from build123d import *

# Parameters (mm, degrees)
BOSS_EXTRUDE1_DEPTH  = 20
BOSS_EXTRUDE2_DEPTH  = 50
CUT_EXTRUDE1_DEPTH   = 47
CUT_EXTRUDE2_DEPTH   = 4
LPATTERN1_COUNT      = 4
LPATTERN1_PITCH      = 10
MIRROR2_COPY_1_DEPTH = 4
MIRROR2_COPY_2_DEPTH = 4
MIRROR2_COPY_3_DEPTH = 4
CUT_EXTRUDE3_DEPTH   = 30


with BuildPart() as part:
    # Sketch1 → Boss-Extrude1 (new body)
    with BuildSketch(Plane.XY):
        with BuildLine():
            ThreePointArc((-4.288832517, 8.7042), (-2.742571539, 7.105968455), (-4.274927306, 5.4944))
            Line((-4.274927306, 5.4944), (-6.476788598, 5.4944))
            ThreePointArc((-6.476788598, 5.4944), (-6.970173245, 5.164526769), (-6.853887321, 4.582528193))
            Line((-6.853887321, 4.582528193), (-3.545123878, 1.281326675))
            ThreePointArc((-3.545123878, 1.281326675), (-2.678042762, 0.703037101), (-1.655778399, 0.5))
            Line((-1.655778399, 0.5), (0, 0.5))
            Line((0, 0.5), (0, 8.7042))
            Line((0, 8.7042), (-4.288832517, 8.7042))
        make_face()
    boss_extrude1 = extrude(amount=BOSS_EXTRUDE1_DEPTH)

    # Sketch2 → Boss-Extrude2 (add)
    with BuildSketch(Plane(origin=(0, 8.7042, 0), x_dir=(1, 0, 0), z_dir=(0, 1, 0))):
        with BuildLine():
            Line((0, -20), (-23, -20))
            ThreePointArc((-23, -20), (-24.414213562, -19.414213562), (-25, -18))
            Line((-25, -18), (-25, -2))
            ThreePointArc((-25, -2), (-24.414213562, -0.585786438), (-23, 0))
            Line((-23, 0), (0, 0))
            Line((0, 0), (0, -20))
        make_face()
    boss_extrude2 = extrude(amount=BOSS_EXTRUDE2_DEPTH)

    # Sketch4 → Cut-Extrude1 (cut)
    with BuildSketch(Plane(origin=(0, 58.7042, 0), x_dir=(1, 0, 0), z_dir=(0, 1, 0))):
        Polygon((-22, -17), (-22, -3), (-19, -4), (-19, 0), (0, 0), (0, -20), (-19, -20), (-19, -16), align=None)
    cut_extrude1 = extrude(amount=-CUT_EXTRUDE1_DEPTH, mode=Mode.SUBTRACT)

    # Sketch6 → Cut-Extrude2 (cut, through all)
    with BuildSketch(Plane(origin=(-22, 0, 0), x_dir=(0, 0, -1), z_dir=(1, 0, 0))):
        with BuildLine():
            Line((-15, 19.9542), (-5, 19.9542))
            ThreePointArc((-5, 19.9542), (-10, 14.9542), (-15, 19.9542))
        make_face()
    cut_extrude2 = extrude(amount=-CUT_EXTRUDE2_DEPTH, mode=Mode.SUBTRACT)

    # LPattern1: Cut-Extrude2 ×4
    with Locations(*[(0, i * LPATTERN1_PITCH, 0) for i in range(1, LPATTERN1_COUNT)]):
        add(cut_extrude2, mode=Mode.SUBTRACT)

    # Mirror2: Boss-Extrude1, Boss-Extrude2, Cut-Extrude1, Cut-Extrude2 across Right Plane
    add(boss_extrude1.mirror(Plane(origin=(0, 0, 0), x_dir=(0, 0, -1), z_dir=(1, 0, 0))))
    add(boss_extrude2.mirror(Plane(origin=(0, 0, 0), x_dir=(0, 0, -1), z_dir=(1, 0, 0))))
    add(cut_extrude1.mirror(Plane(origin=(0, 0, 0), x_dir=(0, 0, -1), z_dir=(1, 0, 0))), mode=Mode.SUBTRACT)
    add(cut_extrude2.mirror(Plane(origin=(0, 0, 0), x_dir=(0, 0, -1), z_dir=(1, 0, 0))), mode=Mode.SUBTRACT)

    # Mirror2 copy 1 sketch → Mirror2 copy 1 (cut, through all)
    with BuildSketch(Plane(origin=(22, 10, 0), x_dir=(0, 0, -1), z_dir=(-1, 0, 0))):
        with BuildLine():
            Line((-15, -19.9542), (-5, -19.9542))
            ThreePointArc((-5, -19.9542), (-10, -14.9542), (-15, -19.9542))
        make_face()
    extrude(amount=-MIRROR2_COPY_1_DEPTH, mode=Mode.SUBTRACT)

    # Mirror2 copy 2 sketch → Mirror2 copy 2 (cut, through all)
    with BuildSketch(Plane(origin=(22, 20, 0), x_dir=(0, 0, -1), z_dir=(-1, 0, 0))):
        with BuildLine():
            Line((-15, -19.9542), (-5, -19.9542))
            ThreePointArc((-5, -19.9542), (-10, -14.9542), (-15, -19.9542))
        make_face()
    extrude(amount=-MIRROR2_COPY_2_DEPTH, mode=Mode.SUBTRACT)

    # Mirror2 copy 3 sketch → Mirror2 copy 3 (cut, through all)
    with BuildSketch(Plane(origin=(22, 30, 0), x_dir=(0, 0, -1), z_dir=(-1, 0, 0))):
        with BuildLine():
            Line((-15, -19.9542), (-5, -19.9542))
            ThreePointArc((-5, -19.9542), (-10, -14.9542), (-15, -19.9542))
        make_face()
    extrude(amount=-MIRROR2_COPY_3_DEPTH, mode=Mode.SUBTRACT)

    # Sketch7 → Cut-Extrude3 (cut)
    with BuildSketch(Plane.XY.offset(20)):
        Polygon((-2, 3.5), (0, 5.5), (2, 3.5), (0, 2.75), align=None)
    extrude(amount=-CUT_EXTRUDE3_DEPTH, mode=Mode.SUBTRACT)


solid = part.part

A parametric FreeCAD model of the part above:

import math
import FreeCAD as App
import Part
import Sketcher
from FreeCAD import Vector


def add_polygon(sketch, points):
    """Adds a closed chain of lines whose ends are joined by coincident constraints."""
    first, n = sketch.GeometryCount, len(points)
    for a, b in zip(points, points[1:] + points[:1]):
        sketch.addGeometry(Part.LineSegment(App.Vector(*a, 0), App.Vector(*b, 0)), False)
    for i in range(n):
        sketch.addConstraint(Sketcher.Constraint("Coincident", first + i, 2, first + (i + 1) % n, 1))

doc = App.newDocument("Part")
body = doc.addObject("PartDesign::Body", "Body")

# Sketch on XY plane
sketch1 = body.newObject("Sketcher::SketchObject", "Sketch")
sketch1.AttachmentSupport = (doc.getObject("XY_Plane"), [""])
sketch1.MapMode = "FlatFace"
sketch1.addGeometry([
    Part.ArcOfCircle(Part.Circle(Vector(-4.3, 7.1, 0), Vector(0, 0, 1), 1.6), math.radians(-87), math.radians(88)),  # 0
    Part.LineSegment(Vector(-4.3, 5.5, 0), Vector(-6.5, 5.5, 0)),  # 1
    Part.ArcOfCircle(Part.Circle(Vector(-6.5, 5, 0), Vector(0, 0, 1), 0.5), math.radians(90), math.radians(225)),  # 2
    Part.LineSegment(Vector(-6.9, 4.6, 0), Vector(-3.5, 1.3, 0)),  # 3
    Part.ArcOfCircle(Part.Circle(Vector(-1.7, 3.2, 0), Vector(0, 0, 1), 2.7), math.radians(-135), math.radians(-90)),  # 4
    Part.LineSegment(Vector(-1.7, 0.5, 0), Vector(0, 0.5, 0)),  # 5
    Part.LineSegment(Vector(0, 0.5, 0), Vector(0, 8.7, 0)),  # 6
    Part.LineSegment(Vector(0, 8.7, 0), Vector(-4.3, 8.7, 0)),  # 7
], False)
sketch1.addConstraint([
    Sketcher.Constraint("Coincident", 0, 1, 1, 1),
    Sketcher.Constraint("Tangent", 1, 2, 2, 1),
    Sketcher.Constraint("Tangent", 2, 2, 3, 1),
    Sketcher.Constraint("Tangent", 3, 2, 4, 1),
    Sketcher.Constraint("Tangent", 4, 2, 5, 1),
    Sketcher.Constraint("Coincident", 5, 2, 6, 1),
    Sketcher.Constraint("Coincident", 6, 2, 7, 1),
    Sketcher.Constraint("Coincident", 7, 2, 0, 2),
    Sketcher.Constraint("Horizontal", 1),
    Sketcher.Constraint("Horizontal", 5),
    Sketcher.Constraint("Vertical", 6),
    Sketcher.Constraint("Horizontal", 7),
    Sketcher.Constraint("PointOnObject", 5, 2, -2),
    Sketcher.Constraint("Radius", 4, 2.675),
    Sketcher.Constraint("DistanceY", -1, 1, 4, 2, 0.5),
    Sketcher.Constraint("Radius", 2, 0.533909),
    Sketcher.Constraint("DistanceY", 6, 1, 6, 2, 8.2042),
    Sketcher.Constraint("Radius", 0, 1.606313),
    Sketcher.Constraint("DistanceX", 1, 2, 1, 1, 2.201861),
    Sketcher.Constraint("DistanceX", 5, 1, 5, 2, 1.655778),
    Sketcher.Constraint("DistanceY", -1, 1, 0, 1, 5.4944),
    Sketcher.Constraint("DistanceX", 2, 2, 2, 3, 0.377099),
    Sketcher.Constraint("DistanceX", 7, 2, 7, 1, 4.288833),
])
pad1 = body.newObject("PartDesign::Pad", "Pad")
pad1.Profile = sketch1
pad1.Length = 20

# Sketch on XZ plane
sketch2 = body.newObject("Sketcher::SketchObject", "Sketch001")
sketch2.AttachmentSupport = (doc.getObject("XZ_Plane"), [""])
sketch2.MapMode = "FlatFace"
sketch2.AttachmentOffset = App.Placement(Vector(0, 0, -8.7042), App.Rotation())
sketch2.addGeometry([
    Part.LineSegment(Vector(-23, 20, 0), Vector(0, 20, 0)),  # 0
    Part.LineSegment(Vector(0, 20, 0), Vector(0, 0, 0)),  # 1
    Part.LineSegment(Vector(0, 0, 0), Vector(-23, 0, 0)),  # 2
    Part.ArcOfCircle(Part.Circle(Vector(-23, 2, 0), Vector(0, 0, 1), 2), math.radians(-180), math.radians(-90)),  # 3
    Part.LineSegment(Vector(-25, 2, 0), Vector(-25, 18, 0)),  # 4
    Part.ArcOfCircle(Part.Circle(Vector(-23, 18, 0), Vector(0, 0, 1), 2), math.radians(90), math.radians(180)),  # 5
], False)
sketch2.addConstraint([
    Sketcher.Constraint("Coincident", 0, 2, 1, 1),
    Sketcher.Constraint("Coincident", 1, 2, 2, 1),
    Sketcher.Constraint("Tangent", 2, 2, 3, 2),
    Sketcher.Constraint("Tangent", 3, 1, 4, 1),
    Sketcher.Constraint("Tangent", 4, 2, 5, 2),
    Sketcher.Constraint("Tangent", 5, 1, 0, 1),
    Sketcher.Constraint("Horizontal", 0),
    Sketcher.Constraint("Vertical", 1),
    Sketcher.Constraint("Horizontal", 2),
    Sketcher.Constraint("Vertical", 4),
    Sketcher.Constraint("Coincident", 1, 2, -1, 1),
    Sketcher.Constraint("Equal", 3, 5),
    Sketcher.Constraint("Radius", 3, 2.0),
    Sketcher.Constraint("DistanceX", 0, 1, 0, 2, 23.0),
    Sketcher.Constraint("DistanceY", 1, 2, 1, 1, 20.0),
])
pad2 = body.newObject("PartDesign::Pad", "Pad001")
pad2.Profile = sketch2
pad2.Length = 50
pad2.Reversed = True

# Sketch on XZ plane
sketch3 = body.newObject("Sketcher::SketchObject", "Sketch002")
sketch3.AttachmentSupport = (doc.getObject("XZ_Plane"), [""])
sketch3.MapMode = "FlatFace"
sketch3.AttachmentOffset = App.Placement(Vector(0, 0, -58.7042), App.Rotation())
add_polygon(sketch3, [(-22, 3), (-22, 17), (-19, 16), (-19, 20), (0, 20), (0, 0), (-19, 0), (-19, 4)])  # lines 0-7
sketch3.addConstraint([
    Sketcher.Constraint("Vertical", 0),
    Sketcher.Constraint("Vertical", 2),
    Sketcher.Constraint("Horizontal", 3),
    Sketcher.Constraint("Vertical", 4),
    Sketcher.Constraint("Horizontal", 5),
    Sketcher.Constraint("Vertical", 6),
    Sketcher.Constraint("Coincident", 4, 2, -1, 1),
    Sketcher.Constraint("Vertical", 2, 2, 5, 2),
    Sketcher.Constraint("Equal", 2, 6),
    Sketcher.Constraint("Equal", 1, 7),
    Sketcher.Constraint("DistanceX", 3, 1, 3, 2, 19.0),
    Sketcher.Constraint("DistanceY", 0, 1, 0, 2, 14.0),
    Sketcher.Constraint("DistanceY", 2, 1, 2, 2, 4.0),
    Sketcher.Constraint("DistanceY", 4, 2, 4, 1, 20.0),
    Sketcher.Constraint("DistanceX", 0, 2, -1, 1, 22.0),
])
pocket1 = body.newObject("PartDesign::Pocket", "Pocket")
pocket1.Profile = sketch3
pocket1.Length = 47
pocket1.Reversed = True

# Sketch on YZ plane
sketch4 = body.newObject("Sketcher::SketchObject", "Sketch003")
sketch4.AttachmentSupport = (doc.getObject("YZ_Plane"), [""])
sketch4.MapMode = "FlatFace"
sketch4.AttachmentOffset = App.Placement(Vector(0, 0, -22), App.Rotation())
sketch4.addGeometry([
    Part.LineSegment(Vector(20, 5, 0), Vector(20, 15, 0)),
    Part.ArcOfCircle(Part.Circle(Vector(20, 10, 0), Vector(0, 0, 1), 5), math.radians(90), math.radians(270)),
], False)
sketch4.addConstraint([
    Sketcher.Constraint("Coincident", 0, 1, 1, 2),
    Sketcher.Constraint("Coincident", 1, 1, 0, 2),
    Sketcher.Constraint("Vertical", 0),
    Sketcher.Constraint("Vertical", 1, 3, 0, 1),
    Sketcher.Constraint("Radius", 1, 5.0),
    Sketcher.Constraint("DistanceY", -1, 1, 1, 3, 10.0),
    Sketcher.Constraint("DistanceX", -1, 1, 1, 3, 19.9542),
])
pocket2 = body.newObject("PartDesign::Pocket", "Pocket001")
pocket2.Profile = sketch4
pocket2.Type = "ThroughAll"
doc.recompute()

linearpattern = body.newObject("PartDesign::LinearPattern", "LinearPattern")
linearpattern.Originals = [pocket2]
linearpattern.Direction = (doc.getObject("Y_Axis"), [""])
linearpattern.Mode = "offset"
linearpattern.Offset = 10
linearpattern.Occurrences = 4
body.Tip = linearpattern
doc.recompute()

mirrored = body.newObject("PartDesign::Mirrored", "Mirrored")
mirrored.Originals = [pad1, pad2, pocket1, pocket2]
mirrored.MirrorPlane = (doc.getObject("YZ_Plane"), [""])
body.Tip = mirrored

# Sketch on YZ plane
sketch5 = body.newObject("Sketcher::SketchObject", "Sketch004")
sketch5.AttachmentSupport = (doc.getObject("YZ_Plane"), [""])
sketch5.MapMode = "FlatFace"
sketch5.AttachmentOffset = App.Placement(Vector(0, 0, 22), App.Rotation())
sketch5.addGeometry([
    Part.LineSegment(Vector(30, 15, 0), Vector(30, 5, 0)),
    Part.ArcOfCircle(Part.Circle(Vector(30, 10, 0), Vector(0, 0, 1), 5), math.radians(90), math.radians(270)),
], False)
sketch5.addConstraint([
    Sketcher.Constraint("Coincident", 0, 1, 1, 1),
    Sketcher.Constraint("Coincident", 1, 2, 0, 2),
    Sketcher.Constraint("Vertical", 0),
    Sketcher.Constraint("Vertical", 1, 3, 0, 1),
    Sketcher.Constraint("Radius", 1, 5.0),
    Sketcher.Constraint("DistanceY", -1, 1, 1, 3, 10.0),
    Sketcher.Constraint("DistanceX", -1, 1, 1, 3, 29.9542),
])
pocket3 = body.newObject("PartDesign::Pocket", "Pocket002")
pocket3.Profile = sketch5
pocket3.Type = "ThroughAll"
pocket3.Reversed = True

# Sketch on YZ plane
sketch6 = body.newObject("Sketcher::SketchObject", "Sketch005")
sketch6.AttachmentSupport = (doc.getObject("YZ_Plane"), [""])
sketch6.MapMode = "FlatFace"
sketch6.AttachmentOffset = App.Placement(Vector(0, 0, 22), App.Rotation())
sketch6.addGeometry([
    Part.LineSegment(Vector(40, 15, 0), Vector(40, 5, 0)),
    Part.ArcOfCircle(Part.Circle(Vector(40, 10, 0), Vector(0, 0, 1), 5), math.radians(90), math.radians(270)),
], False)
sketch6.addConstraint([
    Sketcher.Constraint("Coincident", 0, 1, 1, 1),
    Sketcher.Constraint("Coincident", 1, 2, 0, 2),
    Sketcher.Constraint("Vertical", 0),
    Sketcher.Constraint("Vertical", 1, 3, 0, 1),
    Sketcher.Constraint("Radius", 1, 5.0),
    Sketcher.Constraint("DistanceY", -1, 1, 1, 3, 10.0),
    Sketcher.Constraint("DistanceX", -1, 1, 1, 3, 39.9542),
])
pocket4 = body.newObject("PartDesign::Pocket", "Pocket003")
pocket4.Profile = sketch6
pocket4.Type = "ThroughAll"
pocket4.Reversed = True

# Sketch on YZ plane
sketch7 = body.newObject("Sketcher::SketchObject", "Sketch006")
sketch7.AttachmentSupport = (doc.getObject("YZ_Plane"), [""])
sketch7.MapMode = "FlatFace"
sketch7.AttachmentOffset = App.Placement(Vector(0, 0, 22), App.Rotation())
sketch7.addGeometry([
    Part.LineSegment(Vector(50, 15, 0), Vector(50, 5, 0)),
    Part.ArcOfCircle(Part.Circle(Vector(50, 10, 0), Vector(0, 0, 1), 5), math.radians(90), math.radians(270)),
], False)
sketch7.addConstraint([
    Sketcher.Constraint("Coincident", 0, 1, 1, 1),
    Sketcher.Constraint("Coincident", 1, 2, 0, 2),
    Sketcher.Constraint("Vertical", 0),
    Sketcher.Constraint("Vertical", 1, 3, 0, 1),
    Sketcher.Constraint("Radius", 1, 5.0),
    Sketcher.Constraint("DistanceY", -1, 1, 1, 3, 10.0),
    Sketcher.Constraint("DistanceX", -1, 1, 1, 3, 49.9542),
])
pocket5 = body.newObject("PartDesign::Pocket", "Pocket004")
pocket5.Profile = sketch7
pocket5.Type = "ThroughAll"
pocket5.Reversed = True

# Sketch on XY plane
sketch8 = body.newObject("Sketcher::SketchObject", "Sketch007")
sketch8.AttachmentSupport = (doc.getObject("XY_Plane"), [""])
sketch8.MapMode = "FlatFace"
sketch8.AttachmentOffset = App.Placement(Vector(0, 0, 20), App.Rotation())
add_polygon(sketch8, [(0, 5.5), (-2, 3.5), (0, 2.8), (2, 3.5)])  # lines 0-3
sketch8.addConstraint([
    Sketcher.Constraint("Symmetric", 0, 2, 2, 2, -2),
    Sketcher.Constraint("PointOnObject", 1, 2, -2),
    Sketcher.Constraint("PointOnObject", 3, 2, -2),
    Sketcher.Constraint("Perpendicular", 0, 3),
    Sketcher.Constraint("DistanceX", 0, 2, -1, 1, 2.0),
    Sketcher.Constraint("DistanceY", -1, 1, 0, 2, 3.5),
    Sketcher.Constraint("DistanceY", -1, 1, 1, 2, 2.75),
])
pocket6 = body.newObject("PartDesign::Pocket", "Pocket005")
pocket6.Profile = sketch8
pocket6.Length = 30

doc.recompute()
